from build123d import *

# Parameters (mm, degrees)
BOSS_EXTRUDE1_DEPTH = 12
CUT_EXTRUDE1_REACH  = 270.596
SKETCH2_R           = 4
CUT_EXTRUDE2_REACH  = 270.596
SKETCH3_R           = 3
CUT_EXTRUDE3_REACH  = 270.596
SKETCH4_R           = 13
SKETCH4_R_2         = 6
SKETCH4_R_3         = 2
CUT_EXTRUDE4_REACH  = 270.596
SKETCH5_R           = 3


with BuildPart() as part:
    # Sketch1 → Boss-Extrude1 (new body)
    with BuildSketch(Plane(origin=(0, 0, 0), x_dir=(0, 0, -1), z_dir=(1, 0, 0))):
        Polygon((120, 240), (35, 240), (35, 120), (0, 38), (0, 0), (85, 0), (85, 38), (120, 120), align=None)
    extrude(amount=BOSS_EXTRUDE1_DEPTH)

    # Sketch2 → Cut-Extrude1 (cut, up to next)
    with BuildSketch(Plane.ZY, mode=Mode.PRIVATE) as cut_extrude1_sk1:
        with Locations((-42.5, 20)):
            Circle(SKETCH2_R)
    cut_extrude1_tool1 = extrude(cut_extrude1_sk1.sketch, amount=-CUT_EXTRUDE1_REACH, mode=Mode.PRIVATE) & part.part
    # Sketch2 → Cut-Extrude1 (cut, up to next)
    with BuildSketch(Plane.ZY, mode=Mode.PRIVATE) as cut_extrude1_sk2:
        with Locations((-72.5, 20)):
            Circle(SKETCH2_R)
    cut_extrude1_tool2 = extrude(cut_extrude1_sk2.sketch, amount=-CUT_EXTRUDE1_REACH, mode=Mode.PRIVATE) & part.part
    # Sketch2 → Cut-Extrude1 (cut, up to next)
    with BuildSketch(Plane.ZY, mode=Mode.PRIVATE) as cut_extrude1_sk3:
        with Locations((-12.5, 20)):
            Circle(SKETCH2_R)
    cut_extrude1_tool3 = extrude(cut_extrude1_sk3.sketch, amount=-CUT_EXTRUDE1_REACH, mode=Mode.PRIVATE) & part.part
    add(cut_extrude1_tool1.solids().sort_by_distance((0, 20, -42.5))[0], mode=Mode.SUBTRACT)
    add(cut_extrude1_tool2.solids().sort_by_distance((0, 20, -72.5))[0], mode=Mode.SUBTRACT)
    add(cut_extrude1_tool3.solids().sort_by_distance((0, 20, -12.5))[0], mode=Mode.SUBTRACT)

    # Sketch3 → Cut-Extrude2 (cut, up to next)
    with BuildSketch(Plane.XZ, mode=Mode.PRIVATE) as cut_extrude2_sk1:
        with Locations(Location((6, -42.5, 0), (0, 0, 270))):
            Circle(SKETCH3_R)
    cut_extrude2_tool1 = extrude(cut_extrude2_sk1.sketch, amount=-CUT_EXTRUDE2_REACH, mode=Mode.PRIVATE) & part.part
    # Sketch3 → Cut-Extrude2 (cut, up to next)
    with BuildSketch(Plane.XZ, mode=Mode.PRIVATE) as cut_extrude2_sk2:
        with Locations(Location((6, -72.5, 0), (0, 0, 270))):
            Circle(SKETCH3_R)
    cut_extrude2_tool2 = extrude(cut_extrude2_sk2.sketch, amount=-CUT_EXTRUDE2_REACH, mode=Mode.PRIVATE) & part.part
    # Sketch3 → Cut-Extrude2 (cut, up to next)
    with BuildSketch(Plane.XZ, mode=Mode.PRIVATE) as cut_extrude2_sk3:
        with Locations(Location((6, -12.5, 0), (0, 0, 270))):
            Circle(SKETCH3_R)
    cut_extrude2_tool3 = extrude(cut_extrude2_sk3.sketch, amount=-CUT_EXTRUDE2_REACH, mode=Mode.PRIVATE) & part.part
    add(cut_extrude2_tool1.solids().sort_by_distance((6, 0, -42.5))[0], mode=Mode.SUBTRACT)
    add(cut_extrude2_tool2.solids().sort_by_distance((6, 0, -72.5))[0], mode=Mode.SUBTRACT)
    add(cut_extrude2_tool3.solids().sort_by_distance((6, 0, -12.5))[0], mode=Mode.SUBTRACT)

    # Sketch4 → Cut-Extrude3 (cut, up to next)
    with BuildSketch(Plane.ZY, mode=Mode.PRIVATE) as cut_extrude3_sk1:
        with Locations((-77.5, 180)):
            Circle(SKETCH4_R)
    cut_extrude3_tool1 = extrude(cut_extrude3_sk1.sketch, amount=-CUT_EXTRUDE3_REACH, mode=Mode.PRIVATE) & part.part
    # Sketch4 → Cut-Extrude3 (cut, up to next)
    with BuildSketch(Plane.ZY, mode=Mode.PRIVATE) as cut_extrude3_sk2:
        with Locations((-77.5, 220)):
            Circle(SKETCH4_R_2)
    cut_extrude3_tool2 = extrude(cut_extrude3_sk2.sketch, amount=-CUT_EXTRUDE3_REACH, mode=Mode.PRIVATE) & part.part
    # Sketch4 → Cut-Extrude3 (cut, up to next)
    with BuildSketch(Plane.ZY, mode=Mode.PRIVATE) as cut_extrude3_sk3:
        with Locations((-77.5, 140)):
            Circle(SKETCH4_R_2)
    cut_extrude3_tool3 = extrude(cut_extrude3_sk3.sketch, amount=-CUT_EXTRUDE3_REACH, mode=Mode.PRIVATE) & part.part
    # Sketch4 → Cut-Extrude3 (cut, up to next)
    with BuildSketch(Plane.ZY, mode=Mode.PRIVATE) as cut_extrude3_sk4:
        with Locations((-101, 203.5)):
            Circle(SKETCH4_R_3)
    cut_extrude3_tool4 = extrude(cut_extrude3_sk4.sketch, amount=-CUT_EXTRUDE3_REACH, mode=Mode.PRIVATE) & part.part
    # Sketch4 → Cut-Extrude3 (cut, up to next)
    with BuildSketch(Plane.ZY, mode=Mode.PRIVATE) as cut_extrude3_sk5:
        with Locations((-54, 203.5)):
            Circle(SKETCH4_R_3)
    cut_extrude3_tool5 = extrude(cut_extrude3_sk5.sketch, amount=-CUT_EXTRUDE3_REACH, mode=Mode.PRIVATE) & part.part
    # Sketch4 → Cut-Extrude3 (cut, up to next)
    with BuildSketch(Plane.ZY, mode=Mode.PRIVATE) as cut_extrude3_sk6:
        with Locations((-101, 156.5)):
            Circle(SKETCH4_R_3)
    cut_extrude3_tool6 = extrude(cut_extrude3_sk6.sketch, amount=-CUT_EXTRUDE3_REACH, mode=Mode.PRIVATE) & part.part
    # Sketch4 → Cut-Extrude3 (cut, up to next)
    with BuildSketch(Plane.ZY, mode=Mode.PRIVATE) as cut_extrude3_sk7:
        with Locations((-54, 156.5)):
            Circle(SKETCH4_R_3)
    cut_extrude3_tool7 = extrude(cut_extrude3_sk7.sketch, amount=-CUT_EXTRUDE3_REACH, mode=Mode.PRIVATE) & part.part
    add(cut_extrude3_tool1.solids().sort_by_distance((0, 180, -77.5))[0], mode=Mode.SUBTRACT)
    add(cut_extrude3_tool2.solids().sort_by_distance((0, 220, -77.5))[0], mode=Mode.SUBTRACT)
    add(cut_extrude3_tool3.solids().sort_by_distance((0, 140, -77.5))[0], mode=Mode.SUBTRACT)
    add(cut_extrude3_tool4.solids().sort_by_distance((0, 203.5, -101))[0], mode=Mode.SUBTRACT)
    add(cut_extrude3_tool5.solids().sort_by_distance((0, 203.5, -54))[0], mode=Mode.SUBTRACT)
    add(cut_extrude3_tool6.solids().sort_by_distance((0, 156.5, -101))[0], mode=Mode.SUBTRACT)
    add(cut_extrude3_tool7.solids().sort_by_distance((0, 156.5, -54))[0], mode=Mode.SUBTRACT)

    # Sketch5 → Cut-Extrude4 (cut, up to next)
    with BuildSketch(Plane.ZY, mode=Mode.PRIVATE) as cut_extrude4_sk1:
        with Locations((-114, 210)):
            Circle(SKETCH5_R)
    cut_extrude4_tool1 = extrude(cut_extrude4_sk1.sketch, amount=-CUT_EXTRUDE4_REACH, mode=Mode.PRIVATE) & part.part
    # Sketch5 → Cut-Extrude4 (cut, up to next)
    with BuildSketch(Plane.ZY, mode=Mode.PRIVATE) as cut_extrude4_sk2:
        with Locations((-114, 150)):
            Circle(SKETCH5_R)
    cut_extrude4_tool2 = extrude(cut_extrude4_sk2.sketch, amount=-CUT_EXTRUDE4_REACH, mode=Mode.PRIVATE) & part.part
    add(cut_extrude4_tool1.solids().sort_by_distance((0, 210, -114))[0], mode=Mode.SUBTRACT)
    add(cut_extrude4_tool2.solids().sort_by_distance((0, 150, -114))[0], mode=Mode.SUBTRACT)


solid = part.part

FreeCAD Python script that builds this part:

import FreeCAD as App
import Part
import Sketcher
from FreeCAD import Vector
Q = App.Units.Quantity

doc = App.newDocument("Part")
params = doc.addObject("Spreadsheet::Sheet", "Params")
for row, (alias, value) in enumerate([
    ("sketch1_width", "120 mm"),
    ("sketch1_width2", "38 mm"),
    ("sketch1_height", "85 mm"),
    ("pad1_length", "12 mm"),
    ("sketch2_diameter", "8 mm"),
    ("sketch3_diameter", "8 mm"),
    ("sketch4_diameter", "8 mm"),
    ("sketch5_diameter", "6 mm"),
    ("sketch6_diameter", "6 mm"),
    ("sketch7_diameter", "6 mm"),
    ("sketch8_diameter", "26 mm"),
    ("sketch9_diameter", "12 mm"),
    ("sketch10_diameter", "12 mm"),
    ("sketch11_diameter", "4 mm"),
    ("sketch12_diameter", "4 mm"),
    ("sketch13_diameter", "4 mm"),
    ("sketch14_diameter", "4 mm"),
    ("sketch15_diameter", "6 mm"),
    ("sketch16_diameter", "6 mm"),
], start=1):
    params.set(f"A{row}", alias)
    params.set(f"B{row}", "=" + value)
    params.setAlias(f"B{row}", alias)

body = doc.addObject("PartDesign::Body", "Body")

sketch1 = body.newObject("Sketcher::SketchObject", "Sketch")
sketch1.AttachmentSupport = (doc.getObject("YZ_Plane"), [""])
sketch1.MapMode = "FlatFace"
sketch1.addGeometry([
    Part.LineSegment(Vector(240, -120, 0), Vector(240, -35, 0)),
    Part.LineSegment(Vector(240, -35, 0), Vector(120, -35, 0)),
    Part.LineSegment(Vector(120, -35, 0), Vector(38, 0, 0)),
    Part.LineSegment(Vector(38, 0, 0), Vector(0, 0, 0)),
    Part.LineSegment(Vector(0, 0, 0), Vector(0, -85, 0)),
    Part.LineSegment(Vector(0, -85, 0), Vector(38, -85, 0)),
    Part.LineSegment(Vector(38, -85, 0), Vector(120, -120, 0)),
    Part.LineSegment(Vector(120, -120, 0), Vector(240, -120, 0)),
], False)
sketch1.addConstraint([
    Sketcher.Constraint("Coincident", 0, 2, 1, 1),
    Sketcher.Constraint("Coincident", 1, 2, 2, 1),
    Sketcher.Constraint("Coincident", 2, 2, 3, 1),
    Sketcher.Constraint("Coincident", 3, 2, 4, 1),
    Sketcher.Constraint("Coincident", 4, 2, 5, 1),
    Sketcher.Constraint("Coincident", 5, 2, 6, 1),
    Sketcher.Constraint("Coincident", 6, 2, 7, 1),
    Sketcher.Constraint("Coincident", 7, 2, 0, 1),
    Sketcher.Constraint("Vertical", 0),
    Sketcher.Constraint("Horizontal", 1),
    Sketcher.Constraint("Horizontal", 3),
    Sketcher.Constraint("Vertical", 4),
    Sketcher.Constraint("Horizontal", 5),
    Sketcher.Constraint("Horizontal", 7),
    Sketcher.Constraint("Coincident", 3, 2, -1, 1),
    Sketcher.Constraint("Parallel", 2, 6),
    Sketcher.Constraint("Vertical", 2, 2, 5, 2),
    Sketcher.Constraint("Vertical", 1, 2, 6, 2),
    Sketcher.Constraint("DistanceX", 1, 2, 1, 1, Q("120 mm")),
    Sketcher.Constraint("DistanceX", 3, 2, 3, 1, Q("38 mm")),
    Sketcher.Constraint("DistanceY", 0, 1, 0, 2, Q("85 mm")),
    Sketcher.Constraint("DistanceX", -1, 1, 0, 2, Q("240 mm")),
    Sketcher.Constraint("DistanceY", 0, 2, -1, 1, Q("35 mm")),
])
sketch1.setExpression("Constraints[18]", "Params.sketch1_width")
sketch1.setExpression("Constraints[19]", "Params.sketch1_width2")
sketch1.setExpression("Constraints[20]", "Params.sketch1_height")
pad1 = body.newObject("PartDesign::Pad", "Pad")
pad1.Profile = sketch1
pad1.setExpression("Length", "Params.pad1_length")

sketch2 = body.newObject("Sketcher::SketchObject", "Sketch001")
sketch2.AttachmentSupport = (doc.getObject("YZ_Plane"), [""])
sketch2.MapMode = "FlatFace"
sketch2.addGeometry(Part.Circle(Vector(20, -42.5, 0), Vector(0, 0, 1), 4), False)
sketch2.addConstraint([
    Sketcher.Constraint("Diameter", 0, Q("8 mm")),
    Sketcher.Constraint("DistanceX", -1, 1, 0, 3, Q("20 mm")),
    Sketcher.Constraint("DistanceY", 0, 3, -1, 1, Q("42.5 mm")),
])
sketch2.setExpression("Constraints[0]", "Params.sketch2_diameter")
pocket1 = body.newObject("PartDesign::Pocket", "Pocket")
pocket1.Profile = sketch2
pocket1.Type = "UpToFirst"
pocket1.Reversed = True

sketch3 = body.newObject("Sketcher::SketchObject", "Sketch002")
sketch3.AttachmentSupport = (doc.getObject("YZ_Plane"), [""])
sketch3.MapMode = "FlatFace"
sketch3.addGeometry(Part.Circle(Vector(20, -72.5, 0), Vector(0, 0, 1), 4), False)
sketch3.addConstraint([
    Sketcher.Constraint("Diameter", 0, Q("8 mm")),
    Sketcher.Constraint("DistanceX", -1, 1, 0, 3, Q("20 mm")),
    Sketcher.Constraint("DistanceY", 0, 3, -1, 1, Q("72.5 mm")),
])
sketch3.setExpression("Constraints[0]", "Params.sketch3_diameter")
pocket2 = body.newObject("PartDesign::Pocket", "Pocket001")
pocket2.Profile = sketch3
pocket2.Type = "UpToFirst"
pocket2.Reversed = True

sketch4 = body.newObject("Sketcher::SketchObject", "Sketch003")
sketch4.AttachmentSupport = (doc.getObject("YZ_Plane"), [""])
sketch4.MapMode = "FlatFace"
sketch4.addGeometry(Part.Circle(Vector(20, -12.5, 0), Vector(0, 0, 1), 4), False)
sketch4.addConstraint([
    Sketcher.Constraint("Diameter", 0, Q("8 mm")),
    Sketcher.Constraint("DistanceX", -1, 1, 0, 3, Q("20 mm")),
    Sketcher.Constraint("DistanceY", 0, 3, -1, 1, Q("12.5 mm")),
])
sketch4.setExpression("Constraints[0]", "Params.sketch4_diameter")
pocket3 = body.newObject("PartDesign::Pocket", "Pocket002")
pocket3.Profile = sketch4
pocket3.Type = "UpToFirst"
pocket3.Reversed = True

sketch5 = body.newObject("Sketcher::SketchObject", "Sketch004")
sketch5.AttachmentSupport = (doc.getObject("XZ_Plane"), [""])
sketch5.MapMode = "FlatFace"
sketch5.addGeometry(Part.Circle(Vector(6, -42.5, 0), Vector(0, 0, 1), 3), False)
sketch5.addConstraint([
    Sketcher.Constraint("Diameter", 0, Q("6 mm")),
    Sketcher.Constraint("DistanceX", -1, 1, 0, 3, Q("6 mm")),
    Sketcher.Constraint("DistanceY", 0, 3, -1, 1, Q("42.5 mm")),
])
sketch5.setExpression("Constraints[0]", "Params.sketch5_diameter")
pocket4 = body.newObject("PartDesign::Pocket", "Pocket003")
pocket4.Profile = sketch5
pocket4.Type = "UpToFirst"

sketch6 = body.newObject("Sketcher::SketchObject", "Sketch005")
sketch6.AttachmentSupport = (doc.getObject("XZ_Plane"), [""])
sketch6.MapMode = "FlatFace"
sketch6.addGeometry(Part.Circle(Vector(6, -72.5, 0), Vector(0, 0, 1), 3), False)
sketch6.addConstraint([
    Sketcher.Constraint("Diameter", 0, Q("6 mm")),
    Sketcher.Constraint("DistanceX", -1, 1, 0, 3, Q("6 mm")),
    Sketcher.Constraint("DistanceY", 0, 3, -1, 1, Q("72.5 mm")),
])
sketch6.setExpression("Constraints[0]", "Params.sketch6_diameter")
pocket5 = body.newObject("PartDesign::Pocket", "Pocket004")
pocket5.Profile = sketch6
pocket5.Type = "UpToFirst"

sketch7 = body.newObject("Sketcher::SketchObject", "Sketch006")
sketch7.AttachmentSupport = (doc.getObject("XZ_Plane"), [""])
sketch7.MapMode = "FlatFace"
sketch7.addGeometry(Part.Circle(Vector(6, -12.5, 0), Vector(0, 0, 1), 3), False)
sketch7.addConstraint([
    Sketcher.Constraint("Diameter", 0, Q("6 mm")),
    Sketcher.Constraint("DistanceX", -1, 1, 0, 3, Q("6 mm")),
    Sketcher.Constraint("DistanceY", 0, 3, -1, 1, Q("12.5 mm")),
])
sketch7.setExpression("Constraints[0]", "Params.sketch7_diameter")
pocket6 = body.newObject("PartDesign::Pocket", "Pocket005")
pocket6.Profile = sketch7
pocket6.Type = "UpToFirst"

sketch8 = body.newObject("Sketcher::SketchObject", "Sketch007")
sketch8.AttachmentSupport = (doc.getObject("YZ_Plane"), [""])
sketch8.MapMode = "FlatFace"
sketch8.addGeometry(Part.Circle(Vector(180, -77.5, 0), Vector(0, 0, 1), 13), False)
sketch8.addConstraint([
    Sketcher.Constraint("Diameter", 0, Q("26 mm")),
    Sketcher.Constraint("DistanceX", -1, 1, 0, 3, Q("180 mm")),
    Sketcher.Constraint("DistanceY", 0, 3, -1, 1, Q("77.5 mm")),
])
sketch8.setExpression("Constraints[0]", "Params.sketch8_diameter")
pocket7 = body.newObject("PartDesign::Pocket", "Pocket006")
pocket7.Profile = sketch8
pocket7.Type = "UpToFirst"
pocket7.Reversed = True

sketch9 = body.newObject("Sketcher::SketchObject", "Sketch008")
sketch9.AttachmentSupport = (doc.getObject("YZ_Plane"), [""])
sketch9.MapMode = "FlatFace"
sketch9.addGeometry(Part.Circle(Vector(220, -77.5, 0), Vector(0, 0, 1), 6), False)
sketch9.addConstraint([
    Sketcher.Constraint("Diameter", 0, Q("12 mm")),
    Sketcher.Constraint("DistanceX", -1, 1, 0, 3, Q("220 mm")),
    Sketcher.Constraint("DistanceY", 0, 3, -1, 1, Q("77.5 mm")),
])
sketch9.setExpression("Constraints[0]", "Params.sketch9_diameter")
pocket8 = body.newObject("PartDesign::Pocket", "Pocket007")
pocket8.Profile = sketch9
pocket8.Type = "UpToFirst"
pocket8.Reversed = True

sketch10 = body.newObject("Sketcher::SketchObject", "Sketch009")
sketch10.AttachmentSupport = (doc.getObject("YZ_Plane"), [""])
sketch10.MapMode = "FlatFace"
sketch10.addGeometry(Part.Circle(Vector(140, -77.5, 0), Vector(0, 0, 1), 6), False)
sketch10.addConstraint([
    Sketcher.Constraint("Diameter", 0, Q("12 mm")),
    Sketcher.Constraint("DistanceX", -1, 1, 0, 3, Q("140 mm")),
    Sketcher.Constraint("DistanceY", 0, 3, -1, 1, Q("77.5 mm")),
])
sketch10.setExpression("Constraints[0]", "Params.sketch10_diameter")
pocket9 = body.newObject("PartDesign::Pocket", "Pocket008")
pocket9.Profile = sketch10
pocket9.Type = "UpToFirst"
pocket9.Reversed = True

sketch11 = body.newObject("Sketcher::SketchObject", "Sketch010")
sketch11.AttachmentSupport = (doc.getObject("YZ_Plane"), [""])
sketch11.MapMode = "FlatFace"
sketch11.addGeometry(Part.Circle(Vector(203.5, -101, 0), Vector(0, 0, 1), 2), False)
sketch11.addConstraint([
    Sketcher.Constraint("Diameter", 0, Q("4 mm")),
    Sketcher.Constraint("DistanceY", 0, 3, -1, 1, Q("101 mm")),
    Sketcher.Constraint("DistanceX", -1, 1, 0, 3, Q("203.5 mm")),
])
sketch11.setExpression("Constraints[0]", "Params.sketch11_diameter")
pocket10 = body.newObject("PartDesign::Pocket", "Pocket009")
pocket10.Profile = sketch11
pocket10.Type = "UpToFirst"
pocket10.Reversed = True

sketch12 = body.newObject("Sketcher::SketchObject", "Sketch011")
sketch12.AttachmentSupport = (doc.getObject("YZ_Plane"), [""])
sketch12.MapMode = "FlatFace"
sketch12.addGeometry(Part.Circle(Vector(203.5, -54, 0), Vector(0, 0, 1), 2), False)
sketch12.addConstraint([
    Sketcher.Constraint("Diameter", 0, Q("4 mm")),
    Sketcher.Constraint("DistanceY", 0, 3, -1, 1, Q("54 mm")),
    Sketcher.Constraint("DistanceX", -1, 1, 0, 3, Q("203.5 mm")),
])
sketch12.setExpression("Constraints[0]", "Params.sketch12_diameter")
pocket11 = body.newObject("PartDesign::Pocket", "Pocket010")
pocket11.Profile = sketch12
pocket11.Type = "UpToFirst"
pocket11.Reversed = True

sketch13 = body.newObject("Sketcher::SketchObject", "Sketch012")
sketch13.AttachmentSupport = (doc.getObject("YZ_Plane"), [""])
sketch13.MapMode = "FlatFace"
sketch13.addGeometry(Part.Circle(Vector(156.5, -101, 0), Vector(0, 0, 1), 2), False)
sketch13.addConstraint([
    Sketcher.Constraint("Diameter", 0, Q("4 mm")),
    Sketcher.Constraint("DistanceY", 0, 3, -1, 1, Q("101 mm")),
    Sketcher.Constraint("DistanceX", -1, 1, 0, 3, Q("156.5 mm")),
])
sketch13.setExpression("Constraints[0]", "Params.sketch13_diameter")
pocket12 = body.newObject("PartDesign::Pocket", "Pocket011")
pocket12.Profile = sketch13
pocket12.Type = "UpToFirst"
pocket12.Reversed = True

sketch14 = body.newObject("Sketcher::SketchObject", "Sketch013")
sketch14.AttachmentSupport = (doc.getObject("YZ_Plane"), [""])
sketch14.MapMode = "FlatFace"
sketch14.addGeometry(Part.Circle(Vector(156.5, -54, 0), Vector(0, 0, 1), 2), False)
sketch14.addConstraint([
    Sketcher.Constraint("Diameter", 0, Q("4 mm")),
    Sketcher.Constraint("DistanceY", 0, 3, -1, 1, Q("54 mm")),
    Sketcher.Constraint("DistanceX", -1, 1, 0, 3, Q("156.5 mm")),
])
sketch14.setExpression("Constraints[0]", "Params.sketch14_diameter")
pocket13 = body.newObject("PartDesign::Pocket", "Pocket012")
pocket13.Profile = sketch14
pocket13.Type = "UpToFirst"
pocket13.Reversed = True

sketch15 = body.newObject("Sketcher::SketchObject", "Sketch014")
sketch15.AttachmentSupport = (doc.getObject("YZ_Plane"), [""])
sketch15.MapMode = "FlatFace"
sketch15.addGeometry(Part.Circle(Vector(210, -114, 0), Vector(0, 0, 1), 3), False)
sketch15.addConstraint([
    Sketcher.Constraint("Diameter", 0, Q("6 mm")),
    Sketcher.Constraint("DistanceX", -1, 1, 0, 3, Q("210 mm")),
    Sketcher.Constraint("DistanceY", 0, 3, -1, 1, Q("114 mm")),
])
sketch15.setExpression("Constraints[0]", "Params.sketch15_diameter")
pocket14 = body.newObject("PartDesign::Pocket", "Pocket013")
pocket14.Profile = sketch15
pocket14.Type = "UpToFirst"
pocket14.Reversed = True

sketch16 = body.newObject("Sketcher::SketchObject", "Sketch015")
sketch16.AttachmentSupport = (doc.getObject("YZ_Plane"), [""])
sketch16.MapMode = "FlatFace"
sketch16.addGeometry(Part.Circle(Vector(150, -114, 0), Vector(0, 0, 1), 3), False)
sketch16.addConstraint([
    Sketcher.Constraint("Diameter", 0, Q("6 mm")),
    Sketcher.Constraint("DistanceX", -1, 1, 0, 3, Q("150 mm")),
    Sketcher.Constraint("DistanceY", 0, 3, -1, 1, Q("114 mm")),
])
sketch16.setExpression("Constraints[0]", "Params.sketch16_diameter")
pocket15 = body.newObject("PartDesign::Pocket", "Pocket014")
pocket15.Profile = sketch16
pocket15.Type = "UpToFirst"
pocket15.Reversed = True

doc.recompute()
